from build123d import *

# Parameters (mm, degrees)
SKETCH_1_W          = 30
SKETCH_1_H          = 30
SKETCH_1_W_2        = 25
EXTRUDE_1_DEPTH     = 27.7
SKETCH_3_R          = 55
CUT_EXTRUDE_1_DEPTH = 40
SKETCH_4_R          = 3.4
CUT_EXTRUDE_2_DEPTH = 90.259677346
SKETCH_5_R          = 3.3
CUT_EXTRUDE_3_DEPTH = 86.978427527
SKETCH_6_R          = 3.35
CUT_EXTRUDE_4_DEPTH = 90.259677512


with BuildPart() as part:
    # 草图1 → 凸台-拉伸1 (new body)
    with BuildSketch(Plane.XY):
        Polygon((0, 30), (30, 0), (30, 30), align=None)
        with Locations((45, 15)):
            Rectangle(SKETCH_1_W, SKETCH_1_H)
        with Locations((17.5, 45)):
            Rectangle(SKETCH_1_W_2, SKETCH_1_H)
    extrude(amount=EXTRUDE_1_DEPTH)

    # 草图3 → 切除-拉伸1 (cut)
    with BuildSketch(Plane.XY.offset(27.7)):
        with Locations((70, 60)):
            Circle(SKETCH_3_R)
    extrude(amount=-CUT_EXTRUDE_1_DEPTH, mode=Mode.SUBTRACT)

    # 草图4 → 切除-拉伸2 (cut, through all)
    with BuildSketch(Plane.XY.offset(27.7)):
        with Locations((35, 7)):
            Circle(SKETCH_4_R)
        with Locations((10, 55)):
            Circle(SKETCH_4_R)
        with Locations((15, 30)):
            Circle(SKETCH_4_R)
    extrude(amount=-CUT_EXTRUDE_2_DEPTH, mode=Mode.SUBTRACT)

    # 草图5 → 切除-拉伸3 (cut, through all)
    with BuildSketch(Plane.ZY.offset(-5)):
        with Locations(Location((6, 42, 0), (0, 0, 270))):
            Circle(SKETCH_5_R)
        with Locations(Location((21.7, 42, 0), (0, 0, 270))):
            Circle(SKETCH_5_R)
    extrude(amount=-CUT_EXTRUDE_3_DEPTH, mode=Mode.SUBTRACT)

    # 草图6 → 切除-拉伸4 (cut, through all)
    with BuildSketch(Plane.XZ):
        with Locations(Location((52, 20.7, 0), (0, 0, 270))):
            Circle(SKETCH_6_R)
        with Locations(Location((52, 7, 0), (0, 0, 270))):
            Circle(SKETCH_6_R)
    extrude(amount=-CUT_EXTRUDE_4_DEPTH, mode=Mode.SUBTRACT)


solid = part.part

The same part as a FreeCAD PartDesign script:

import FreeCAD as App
import Part
import Sketcher
from FreeCAD import Vector


def add_polygon(sketch, points):
    """Adds a closed chain of lines whose ends are joined by coincident constraints."""
    first, n = sketch.GeometryCount, len(points)
    for a, b in zip(points, points[1:] + points[:1]):
        sketch.addGeometry(Part.LineSegment(App.Vector(*a, 0), App.Vector(*b, 0)), False)
    for i in range(n):
        sketch.addConstraint(Sketcher.Constraint("Coincident", first + i, 2, first + (i + 1) % n, 1))

doc = App.newDocument("Part")
body = doc.addObject("PartDesign::Body", "Body")

# Sketch on XY plane
sketch1 = body.newObject("Sketcher::SketchObject", "Sketch")
sketch1.AttachmentSupport = (doc.getObject("XY_Plane"), [""])
sketch1.MapMode = "FlatFace"
add_polygon(sketch1, [(0, 30), (30, 0), (60, 0), (60, 30), (30, 30), (30, 60), (5, 60), (5, 30)])  # lines 0-7
sketch1.addConstraint([
    Sketcher.Constraint("Horizontal", 1),
    Sketcher.Constraint("Vertical", 2),
    Sketcher.Constraint("Horizontal", 3),
    Sketcher.Constraint("Vertical", 4),
    Sketcher.Constraint("Horizontal", 5),
    Sketcher.Constraint("Vertical", 6),
    Sketcher.Constraint("Horizontal", 7),
    Sketcher.Constraint("PointOnObject", 0, 2, -1),
    Sketcher.Constraint("PointOnObject", 7, 2, -2),
    Sketcher.Constraint("Horizontal", 3, 2, 6, 2),
    Sketcher.Constraint("Vertical", 0, 2, 3, 2),
    Sketcher.Constraint("Equal", 3, 2),
    Sketcher.Constraint("Equal", 2, 4),
    Sketcher.Constraint("DistanceX", 1, 1, 1, 2, 30.0),
    Sketcher.Constraint("DistanceX", 5, 2, 5, 1, 25.0),
    Sketcher.Constraint("DistanceX", 7, 2, 7, 1, 5.0),
])
pad1 = body.newObject("PartDesign::Pad", "Pad")
pad1.Profile = sketch1
pad1.Length = 27.7

# Sketch on XY plane
sketch2 = body.newObject("Sketcher::SketchObject", "Sketch001")
sketch2.AttachmentSupport = (doc.getObject("XY_Plane"), [""])
sketch2.MapMode = "FlatFace"
sketch2.AttachmentOffset = App.Placement(Vector(0, 0, 27.7), App.Rotation())
sketch2.addGeometry(Part.Circle(Vector(70, 60, 0), Vector(0, 0, 1), 55), False)
sketch2.addConstraint([
    Sketcher.Constraint("Diameter", 0, 110.0),
    Sketcher.Constraint("DistanceX", -1, 1, 0, 3, 70.0),
    Sketcher.Constraint("DistanceY", -1, 1, 0, 3, 60.0),
])
pocket1 = body.newObject("PartDesign::Pocket", "Pocket")
pocket1.Profile = sketch2
pocket1.Length = 40

# Sketch on XY plane
sketch3 = body.newObject("Sketcher::SketchObject", "Sketch002")
sketch3.AttachmentSupport = (doc.getObject("XY_Plane"), [""])
sketch3.MapMode = "FlatFace"
sketch3.AttachmentOffset = App.Placement(Vector(0, 0, 27.7), App.Rotation())
sketch3.addGeometry([
    Part.Circle(Vector(35, 7, 0), Vector(0, 0, 1), 3.4),
    Part.Circle(Vector(10, 55, 0), Vector(0, 0, 1), 3.4),
    Part.Circle(Vector(15, 30, 0), Vector(0, 0, 1), 3.4),
], False)
sketch3.addConstraint([
    Sketcher.Constraint("Equal", 0, 1),
    Sketcher.Constraint("Equal", 1, 2),
    Sketcher.Constraint("Diameter", 0, 6.8),
    Sketcher.Constraint("DistanceX", -1, 1, 0, 3, 35.0),
    Sketcher.Constraint("DistanceY", -1, 1, 0, 3, 7.0),
    Sketcher.Constraint("DistanceX", -1, 1, 1, 3, 10.0),
    Sketcher.Constraint("DistanceY", -1, 1, 1, 3, 55.0),
    Sketcher.Constraint("DistanceX", -1, 1, 2, 3, 15.0),
    Sketcher.Constraint("DistanceY", -1, 1, 2, 3, 30.0),
])
pocket2 = body.newObject("PartDesign::Pocket", "Pocket001")
pocket2.Profile = sketch3
pocket2.Type = "ThroughAll"

# Sketch on YZ plane
sketch4 = body.newObject("Sketcher::SketchObject", "Sketch003")
sketch4.AttachmentSupport = (doc.getObject("YZ_Plane"), [""])
sketch4.MapMode = "FlatFace"
sketch4.AttachmentOffset = App.Placement(Vector(0, 0, 5), App.Rotation())
sketch4.addGeometry([
    Part.Circle(Vector(42, 6, 0), Vector(0, 0, 1), 3.3),
    Part.Circle(Vector(42, 21.7, 0), Vector(0, 0, 1), 3.3),
], False)
sketch4.addConstraint([
    Sketcher.Constraint("Equal", 0, 1),
    Sketcher.Constraint("Vertical", 0, 3, 1, 3),
    Sketcher.Constraint("Diameter", 0, 6.6),
    Sketcher.Constraint("DistanceX", -1, 1, 0, 3, 42.0),
    Sketcher.Constraint("DistanceY", -1, 1, 0, 3, 6.0),
    Sketcher.Constraint("DistanceY", -1, 1, 1, 3, 21.7),
])
pocket3 = body.newObject("PartDesign::Pocket", "Pocket002")
pocket3.Profile = sketch4
pocket3.Type = "ThroughAll"
pocket3.Reversed = True

# Sketch on XZ plane
sketch5 = body.newObject("Sketcher::SketchObject", "Sketch004")
sketch5.AttachmentSupport = (doc.getObject("XZ_Plane"), [""])
sketch5.MapMode = "FlatFace"
sketch5.addGeometry([
    Part.Circle(Vector(52, 20.7, 0), Vector(0, 0, 1), 3.4),
    Part.Circle(Vector(52, 7, 0), Vector(0, 0, 1), 3.4),
], False)
sketch5.addConstraint([
    Sketcher.Constraint("Equal", 0, 1),
    Sketcher.Constraint("Vertical", 0, 3, 1, 3),
    Sketcher.Constraint("Diameter", 0, 6.7),
    Sketcher.Constraint("DistanceX", -1, 1, 0, 3, 52.0),
    Sketcher.Constraint("DistanceY", -1, 1, 1, 3, 7.0),
    Sketcher.Constraint("DistanceY", -1, 1, 0, 3, 20.7),
])
pocket4 = body.newObject("PartDesign::Pocket", "Pocket003")
pocket4.Profile = sketch5
pocket4.Type = "ThroughAll"

doc.recompute()
